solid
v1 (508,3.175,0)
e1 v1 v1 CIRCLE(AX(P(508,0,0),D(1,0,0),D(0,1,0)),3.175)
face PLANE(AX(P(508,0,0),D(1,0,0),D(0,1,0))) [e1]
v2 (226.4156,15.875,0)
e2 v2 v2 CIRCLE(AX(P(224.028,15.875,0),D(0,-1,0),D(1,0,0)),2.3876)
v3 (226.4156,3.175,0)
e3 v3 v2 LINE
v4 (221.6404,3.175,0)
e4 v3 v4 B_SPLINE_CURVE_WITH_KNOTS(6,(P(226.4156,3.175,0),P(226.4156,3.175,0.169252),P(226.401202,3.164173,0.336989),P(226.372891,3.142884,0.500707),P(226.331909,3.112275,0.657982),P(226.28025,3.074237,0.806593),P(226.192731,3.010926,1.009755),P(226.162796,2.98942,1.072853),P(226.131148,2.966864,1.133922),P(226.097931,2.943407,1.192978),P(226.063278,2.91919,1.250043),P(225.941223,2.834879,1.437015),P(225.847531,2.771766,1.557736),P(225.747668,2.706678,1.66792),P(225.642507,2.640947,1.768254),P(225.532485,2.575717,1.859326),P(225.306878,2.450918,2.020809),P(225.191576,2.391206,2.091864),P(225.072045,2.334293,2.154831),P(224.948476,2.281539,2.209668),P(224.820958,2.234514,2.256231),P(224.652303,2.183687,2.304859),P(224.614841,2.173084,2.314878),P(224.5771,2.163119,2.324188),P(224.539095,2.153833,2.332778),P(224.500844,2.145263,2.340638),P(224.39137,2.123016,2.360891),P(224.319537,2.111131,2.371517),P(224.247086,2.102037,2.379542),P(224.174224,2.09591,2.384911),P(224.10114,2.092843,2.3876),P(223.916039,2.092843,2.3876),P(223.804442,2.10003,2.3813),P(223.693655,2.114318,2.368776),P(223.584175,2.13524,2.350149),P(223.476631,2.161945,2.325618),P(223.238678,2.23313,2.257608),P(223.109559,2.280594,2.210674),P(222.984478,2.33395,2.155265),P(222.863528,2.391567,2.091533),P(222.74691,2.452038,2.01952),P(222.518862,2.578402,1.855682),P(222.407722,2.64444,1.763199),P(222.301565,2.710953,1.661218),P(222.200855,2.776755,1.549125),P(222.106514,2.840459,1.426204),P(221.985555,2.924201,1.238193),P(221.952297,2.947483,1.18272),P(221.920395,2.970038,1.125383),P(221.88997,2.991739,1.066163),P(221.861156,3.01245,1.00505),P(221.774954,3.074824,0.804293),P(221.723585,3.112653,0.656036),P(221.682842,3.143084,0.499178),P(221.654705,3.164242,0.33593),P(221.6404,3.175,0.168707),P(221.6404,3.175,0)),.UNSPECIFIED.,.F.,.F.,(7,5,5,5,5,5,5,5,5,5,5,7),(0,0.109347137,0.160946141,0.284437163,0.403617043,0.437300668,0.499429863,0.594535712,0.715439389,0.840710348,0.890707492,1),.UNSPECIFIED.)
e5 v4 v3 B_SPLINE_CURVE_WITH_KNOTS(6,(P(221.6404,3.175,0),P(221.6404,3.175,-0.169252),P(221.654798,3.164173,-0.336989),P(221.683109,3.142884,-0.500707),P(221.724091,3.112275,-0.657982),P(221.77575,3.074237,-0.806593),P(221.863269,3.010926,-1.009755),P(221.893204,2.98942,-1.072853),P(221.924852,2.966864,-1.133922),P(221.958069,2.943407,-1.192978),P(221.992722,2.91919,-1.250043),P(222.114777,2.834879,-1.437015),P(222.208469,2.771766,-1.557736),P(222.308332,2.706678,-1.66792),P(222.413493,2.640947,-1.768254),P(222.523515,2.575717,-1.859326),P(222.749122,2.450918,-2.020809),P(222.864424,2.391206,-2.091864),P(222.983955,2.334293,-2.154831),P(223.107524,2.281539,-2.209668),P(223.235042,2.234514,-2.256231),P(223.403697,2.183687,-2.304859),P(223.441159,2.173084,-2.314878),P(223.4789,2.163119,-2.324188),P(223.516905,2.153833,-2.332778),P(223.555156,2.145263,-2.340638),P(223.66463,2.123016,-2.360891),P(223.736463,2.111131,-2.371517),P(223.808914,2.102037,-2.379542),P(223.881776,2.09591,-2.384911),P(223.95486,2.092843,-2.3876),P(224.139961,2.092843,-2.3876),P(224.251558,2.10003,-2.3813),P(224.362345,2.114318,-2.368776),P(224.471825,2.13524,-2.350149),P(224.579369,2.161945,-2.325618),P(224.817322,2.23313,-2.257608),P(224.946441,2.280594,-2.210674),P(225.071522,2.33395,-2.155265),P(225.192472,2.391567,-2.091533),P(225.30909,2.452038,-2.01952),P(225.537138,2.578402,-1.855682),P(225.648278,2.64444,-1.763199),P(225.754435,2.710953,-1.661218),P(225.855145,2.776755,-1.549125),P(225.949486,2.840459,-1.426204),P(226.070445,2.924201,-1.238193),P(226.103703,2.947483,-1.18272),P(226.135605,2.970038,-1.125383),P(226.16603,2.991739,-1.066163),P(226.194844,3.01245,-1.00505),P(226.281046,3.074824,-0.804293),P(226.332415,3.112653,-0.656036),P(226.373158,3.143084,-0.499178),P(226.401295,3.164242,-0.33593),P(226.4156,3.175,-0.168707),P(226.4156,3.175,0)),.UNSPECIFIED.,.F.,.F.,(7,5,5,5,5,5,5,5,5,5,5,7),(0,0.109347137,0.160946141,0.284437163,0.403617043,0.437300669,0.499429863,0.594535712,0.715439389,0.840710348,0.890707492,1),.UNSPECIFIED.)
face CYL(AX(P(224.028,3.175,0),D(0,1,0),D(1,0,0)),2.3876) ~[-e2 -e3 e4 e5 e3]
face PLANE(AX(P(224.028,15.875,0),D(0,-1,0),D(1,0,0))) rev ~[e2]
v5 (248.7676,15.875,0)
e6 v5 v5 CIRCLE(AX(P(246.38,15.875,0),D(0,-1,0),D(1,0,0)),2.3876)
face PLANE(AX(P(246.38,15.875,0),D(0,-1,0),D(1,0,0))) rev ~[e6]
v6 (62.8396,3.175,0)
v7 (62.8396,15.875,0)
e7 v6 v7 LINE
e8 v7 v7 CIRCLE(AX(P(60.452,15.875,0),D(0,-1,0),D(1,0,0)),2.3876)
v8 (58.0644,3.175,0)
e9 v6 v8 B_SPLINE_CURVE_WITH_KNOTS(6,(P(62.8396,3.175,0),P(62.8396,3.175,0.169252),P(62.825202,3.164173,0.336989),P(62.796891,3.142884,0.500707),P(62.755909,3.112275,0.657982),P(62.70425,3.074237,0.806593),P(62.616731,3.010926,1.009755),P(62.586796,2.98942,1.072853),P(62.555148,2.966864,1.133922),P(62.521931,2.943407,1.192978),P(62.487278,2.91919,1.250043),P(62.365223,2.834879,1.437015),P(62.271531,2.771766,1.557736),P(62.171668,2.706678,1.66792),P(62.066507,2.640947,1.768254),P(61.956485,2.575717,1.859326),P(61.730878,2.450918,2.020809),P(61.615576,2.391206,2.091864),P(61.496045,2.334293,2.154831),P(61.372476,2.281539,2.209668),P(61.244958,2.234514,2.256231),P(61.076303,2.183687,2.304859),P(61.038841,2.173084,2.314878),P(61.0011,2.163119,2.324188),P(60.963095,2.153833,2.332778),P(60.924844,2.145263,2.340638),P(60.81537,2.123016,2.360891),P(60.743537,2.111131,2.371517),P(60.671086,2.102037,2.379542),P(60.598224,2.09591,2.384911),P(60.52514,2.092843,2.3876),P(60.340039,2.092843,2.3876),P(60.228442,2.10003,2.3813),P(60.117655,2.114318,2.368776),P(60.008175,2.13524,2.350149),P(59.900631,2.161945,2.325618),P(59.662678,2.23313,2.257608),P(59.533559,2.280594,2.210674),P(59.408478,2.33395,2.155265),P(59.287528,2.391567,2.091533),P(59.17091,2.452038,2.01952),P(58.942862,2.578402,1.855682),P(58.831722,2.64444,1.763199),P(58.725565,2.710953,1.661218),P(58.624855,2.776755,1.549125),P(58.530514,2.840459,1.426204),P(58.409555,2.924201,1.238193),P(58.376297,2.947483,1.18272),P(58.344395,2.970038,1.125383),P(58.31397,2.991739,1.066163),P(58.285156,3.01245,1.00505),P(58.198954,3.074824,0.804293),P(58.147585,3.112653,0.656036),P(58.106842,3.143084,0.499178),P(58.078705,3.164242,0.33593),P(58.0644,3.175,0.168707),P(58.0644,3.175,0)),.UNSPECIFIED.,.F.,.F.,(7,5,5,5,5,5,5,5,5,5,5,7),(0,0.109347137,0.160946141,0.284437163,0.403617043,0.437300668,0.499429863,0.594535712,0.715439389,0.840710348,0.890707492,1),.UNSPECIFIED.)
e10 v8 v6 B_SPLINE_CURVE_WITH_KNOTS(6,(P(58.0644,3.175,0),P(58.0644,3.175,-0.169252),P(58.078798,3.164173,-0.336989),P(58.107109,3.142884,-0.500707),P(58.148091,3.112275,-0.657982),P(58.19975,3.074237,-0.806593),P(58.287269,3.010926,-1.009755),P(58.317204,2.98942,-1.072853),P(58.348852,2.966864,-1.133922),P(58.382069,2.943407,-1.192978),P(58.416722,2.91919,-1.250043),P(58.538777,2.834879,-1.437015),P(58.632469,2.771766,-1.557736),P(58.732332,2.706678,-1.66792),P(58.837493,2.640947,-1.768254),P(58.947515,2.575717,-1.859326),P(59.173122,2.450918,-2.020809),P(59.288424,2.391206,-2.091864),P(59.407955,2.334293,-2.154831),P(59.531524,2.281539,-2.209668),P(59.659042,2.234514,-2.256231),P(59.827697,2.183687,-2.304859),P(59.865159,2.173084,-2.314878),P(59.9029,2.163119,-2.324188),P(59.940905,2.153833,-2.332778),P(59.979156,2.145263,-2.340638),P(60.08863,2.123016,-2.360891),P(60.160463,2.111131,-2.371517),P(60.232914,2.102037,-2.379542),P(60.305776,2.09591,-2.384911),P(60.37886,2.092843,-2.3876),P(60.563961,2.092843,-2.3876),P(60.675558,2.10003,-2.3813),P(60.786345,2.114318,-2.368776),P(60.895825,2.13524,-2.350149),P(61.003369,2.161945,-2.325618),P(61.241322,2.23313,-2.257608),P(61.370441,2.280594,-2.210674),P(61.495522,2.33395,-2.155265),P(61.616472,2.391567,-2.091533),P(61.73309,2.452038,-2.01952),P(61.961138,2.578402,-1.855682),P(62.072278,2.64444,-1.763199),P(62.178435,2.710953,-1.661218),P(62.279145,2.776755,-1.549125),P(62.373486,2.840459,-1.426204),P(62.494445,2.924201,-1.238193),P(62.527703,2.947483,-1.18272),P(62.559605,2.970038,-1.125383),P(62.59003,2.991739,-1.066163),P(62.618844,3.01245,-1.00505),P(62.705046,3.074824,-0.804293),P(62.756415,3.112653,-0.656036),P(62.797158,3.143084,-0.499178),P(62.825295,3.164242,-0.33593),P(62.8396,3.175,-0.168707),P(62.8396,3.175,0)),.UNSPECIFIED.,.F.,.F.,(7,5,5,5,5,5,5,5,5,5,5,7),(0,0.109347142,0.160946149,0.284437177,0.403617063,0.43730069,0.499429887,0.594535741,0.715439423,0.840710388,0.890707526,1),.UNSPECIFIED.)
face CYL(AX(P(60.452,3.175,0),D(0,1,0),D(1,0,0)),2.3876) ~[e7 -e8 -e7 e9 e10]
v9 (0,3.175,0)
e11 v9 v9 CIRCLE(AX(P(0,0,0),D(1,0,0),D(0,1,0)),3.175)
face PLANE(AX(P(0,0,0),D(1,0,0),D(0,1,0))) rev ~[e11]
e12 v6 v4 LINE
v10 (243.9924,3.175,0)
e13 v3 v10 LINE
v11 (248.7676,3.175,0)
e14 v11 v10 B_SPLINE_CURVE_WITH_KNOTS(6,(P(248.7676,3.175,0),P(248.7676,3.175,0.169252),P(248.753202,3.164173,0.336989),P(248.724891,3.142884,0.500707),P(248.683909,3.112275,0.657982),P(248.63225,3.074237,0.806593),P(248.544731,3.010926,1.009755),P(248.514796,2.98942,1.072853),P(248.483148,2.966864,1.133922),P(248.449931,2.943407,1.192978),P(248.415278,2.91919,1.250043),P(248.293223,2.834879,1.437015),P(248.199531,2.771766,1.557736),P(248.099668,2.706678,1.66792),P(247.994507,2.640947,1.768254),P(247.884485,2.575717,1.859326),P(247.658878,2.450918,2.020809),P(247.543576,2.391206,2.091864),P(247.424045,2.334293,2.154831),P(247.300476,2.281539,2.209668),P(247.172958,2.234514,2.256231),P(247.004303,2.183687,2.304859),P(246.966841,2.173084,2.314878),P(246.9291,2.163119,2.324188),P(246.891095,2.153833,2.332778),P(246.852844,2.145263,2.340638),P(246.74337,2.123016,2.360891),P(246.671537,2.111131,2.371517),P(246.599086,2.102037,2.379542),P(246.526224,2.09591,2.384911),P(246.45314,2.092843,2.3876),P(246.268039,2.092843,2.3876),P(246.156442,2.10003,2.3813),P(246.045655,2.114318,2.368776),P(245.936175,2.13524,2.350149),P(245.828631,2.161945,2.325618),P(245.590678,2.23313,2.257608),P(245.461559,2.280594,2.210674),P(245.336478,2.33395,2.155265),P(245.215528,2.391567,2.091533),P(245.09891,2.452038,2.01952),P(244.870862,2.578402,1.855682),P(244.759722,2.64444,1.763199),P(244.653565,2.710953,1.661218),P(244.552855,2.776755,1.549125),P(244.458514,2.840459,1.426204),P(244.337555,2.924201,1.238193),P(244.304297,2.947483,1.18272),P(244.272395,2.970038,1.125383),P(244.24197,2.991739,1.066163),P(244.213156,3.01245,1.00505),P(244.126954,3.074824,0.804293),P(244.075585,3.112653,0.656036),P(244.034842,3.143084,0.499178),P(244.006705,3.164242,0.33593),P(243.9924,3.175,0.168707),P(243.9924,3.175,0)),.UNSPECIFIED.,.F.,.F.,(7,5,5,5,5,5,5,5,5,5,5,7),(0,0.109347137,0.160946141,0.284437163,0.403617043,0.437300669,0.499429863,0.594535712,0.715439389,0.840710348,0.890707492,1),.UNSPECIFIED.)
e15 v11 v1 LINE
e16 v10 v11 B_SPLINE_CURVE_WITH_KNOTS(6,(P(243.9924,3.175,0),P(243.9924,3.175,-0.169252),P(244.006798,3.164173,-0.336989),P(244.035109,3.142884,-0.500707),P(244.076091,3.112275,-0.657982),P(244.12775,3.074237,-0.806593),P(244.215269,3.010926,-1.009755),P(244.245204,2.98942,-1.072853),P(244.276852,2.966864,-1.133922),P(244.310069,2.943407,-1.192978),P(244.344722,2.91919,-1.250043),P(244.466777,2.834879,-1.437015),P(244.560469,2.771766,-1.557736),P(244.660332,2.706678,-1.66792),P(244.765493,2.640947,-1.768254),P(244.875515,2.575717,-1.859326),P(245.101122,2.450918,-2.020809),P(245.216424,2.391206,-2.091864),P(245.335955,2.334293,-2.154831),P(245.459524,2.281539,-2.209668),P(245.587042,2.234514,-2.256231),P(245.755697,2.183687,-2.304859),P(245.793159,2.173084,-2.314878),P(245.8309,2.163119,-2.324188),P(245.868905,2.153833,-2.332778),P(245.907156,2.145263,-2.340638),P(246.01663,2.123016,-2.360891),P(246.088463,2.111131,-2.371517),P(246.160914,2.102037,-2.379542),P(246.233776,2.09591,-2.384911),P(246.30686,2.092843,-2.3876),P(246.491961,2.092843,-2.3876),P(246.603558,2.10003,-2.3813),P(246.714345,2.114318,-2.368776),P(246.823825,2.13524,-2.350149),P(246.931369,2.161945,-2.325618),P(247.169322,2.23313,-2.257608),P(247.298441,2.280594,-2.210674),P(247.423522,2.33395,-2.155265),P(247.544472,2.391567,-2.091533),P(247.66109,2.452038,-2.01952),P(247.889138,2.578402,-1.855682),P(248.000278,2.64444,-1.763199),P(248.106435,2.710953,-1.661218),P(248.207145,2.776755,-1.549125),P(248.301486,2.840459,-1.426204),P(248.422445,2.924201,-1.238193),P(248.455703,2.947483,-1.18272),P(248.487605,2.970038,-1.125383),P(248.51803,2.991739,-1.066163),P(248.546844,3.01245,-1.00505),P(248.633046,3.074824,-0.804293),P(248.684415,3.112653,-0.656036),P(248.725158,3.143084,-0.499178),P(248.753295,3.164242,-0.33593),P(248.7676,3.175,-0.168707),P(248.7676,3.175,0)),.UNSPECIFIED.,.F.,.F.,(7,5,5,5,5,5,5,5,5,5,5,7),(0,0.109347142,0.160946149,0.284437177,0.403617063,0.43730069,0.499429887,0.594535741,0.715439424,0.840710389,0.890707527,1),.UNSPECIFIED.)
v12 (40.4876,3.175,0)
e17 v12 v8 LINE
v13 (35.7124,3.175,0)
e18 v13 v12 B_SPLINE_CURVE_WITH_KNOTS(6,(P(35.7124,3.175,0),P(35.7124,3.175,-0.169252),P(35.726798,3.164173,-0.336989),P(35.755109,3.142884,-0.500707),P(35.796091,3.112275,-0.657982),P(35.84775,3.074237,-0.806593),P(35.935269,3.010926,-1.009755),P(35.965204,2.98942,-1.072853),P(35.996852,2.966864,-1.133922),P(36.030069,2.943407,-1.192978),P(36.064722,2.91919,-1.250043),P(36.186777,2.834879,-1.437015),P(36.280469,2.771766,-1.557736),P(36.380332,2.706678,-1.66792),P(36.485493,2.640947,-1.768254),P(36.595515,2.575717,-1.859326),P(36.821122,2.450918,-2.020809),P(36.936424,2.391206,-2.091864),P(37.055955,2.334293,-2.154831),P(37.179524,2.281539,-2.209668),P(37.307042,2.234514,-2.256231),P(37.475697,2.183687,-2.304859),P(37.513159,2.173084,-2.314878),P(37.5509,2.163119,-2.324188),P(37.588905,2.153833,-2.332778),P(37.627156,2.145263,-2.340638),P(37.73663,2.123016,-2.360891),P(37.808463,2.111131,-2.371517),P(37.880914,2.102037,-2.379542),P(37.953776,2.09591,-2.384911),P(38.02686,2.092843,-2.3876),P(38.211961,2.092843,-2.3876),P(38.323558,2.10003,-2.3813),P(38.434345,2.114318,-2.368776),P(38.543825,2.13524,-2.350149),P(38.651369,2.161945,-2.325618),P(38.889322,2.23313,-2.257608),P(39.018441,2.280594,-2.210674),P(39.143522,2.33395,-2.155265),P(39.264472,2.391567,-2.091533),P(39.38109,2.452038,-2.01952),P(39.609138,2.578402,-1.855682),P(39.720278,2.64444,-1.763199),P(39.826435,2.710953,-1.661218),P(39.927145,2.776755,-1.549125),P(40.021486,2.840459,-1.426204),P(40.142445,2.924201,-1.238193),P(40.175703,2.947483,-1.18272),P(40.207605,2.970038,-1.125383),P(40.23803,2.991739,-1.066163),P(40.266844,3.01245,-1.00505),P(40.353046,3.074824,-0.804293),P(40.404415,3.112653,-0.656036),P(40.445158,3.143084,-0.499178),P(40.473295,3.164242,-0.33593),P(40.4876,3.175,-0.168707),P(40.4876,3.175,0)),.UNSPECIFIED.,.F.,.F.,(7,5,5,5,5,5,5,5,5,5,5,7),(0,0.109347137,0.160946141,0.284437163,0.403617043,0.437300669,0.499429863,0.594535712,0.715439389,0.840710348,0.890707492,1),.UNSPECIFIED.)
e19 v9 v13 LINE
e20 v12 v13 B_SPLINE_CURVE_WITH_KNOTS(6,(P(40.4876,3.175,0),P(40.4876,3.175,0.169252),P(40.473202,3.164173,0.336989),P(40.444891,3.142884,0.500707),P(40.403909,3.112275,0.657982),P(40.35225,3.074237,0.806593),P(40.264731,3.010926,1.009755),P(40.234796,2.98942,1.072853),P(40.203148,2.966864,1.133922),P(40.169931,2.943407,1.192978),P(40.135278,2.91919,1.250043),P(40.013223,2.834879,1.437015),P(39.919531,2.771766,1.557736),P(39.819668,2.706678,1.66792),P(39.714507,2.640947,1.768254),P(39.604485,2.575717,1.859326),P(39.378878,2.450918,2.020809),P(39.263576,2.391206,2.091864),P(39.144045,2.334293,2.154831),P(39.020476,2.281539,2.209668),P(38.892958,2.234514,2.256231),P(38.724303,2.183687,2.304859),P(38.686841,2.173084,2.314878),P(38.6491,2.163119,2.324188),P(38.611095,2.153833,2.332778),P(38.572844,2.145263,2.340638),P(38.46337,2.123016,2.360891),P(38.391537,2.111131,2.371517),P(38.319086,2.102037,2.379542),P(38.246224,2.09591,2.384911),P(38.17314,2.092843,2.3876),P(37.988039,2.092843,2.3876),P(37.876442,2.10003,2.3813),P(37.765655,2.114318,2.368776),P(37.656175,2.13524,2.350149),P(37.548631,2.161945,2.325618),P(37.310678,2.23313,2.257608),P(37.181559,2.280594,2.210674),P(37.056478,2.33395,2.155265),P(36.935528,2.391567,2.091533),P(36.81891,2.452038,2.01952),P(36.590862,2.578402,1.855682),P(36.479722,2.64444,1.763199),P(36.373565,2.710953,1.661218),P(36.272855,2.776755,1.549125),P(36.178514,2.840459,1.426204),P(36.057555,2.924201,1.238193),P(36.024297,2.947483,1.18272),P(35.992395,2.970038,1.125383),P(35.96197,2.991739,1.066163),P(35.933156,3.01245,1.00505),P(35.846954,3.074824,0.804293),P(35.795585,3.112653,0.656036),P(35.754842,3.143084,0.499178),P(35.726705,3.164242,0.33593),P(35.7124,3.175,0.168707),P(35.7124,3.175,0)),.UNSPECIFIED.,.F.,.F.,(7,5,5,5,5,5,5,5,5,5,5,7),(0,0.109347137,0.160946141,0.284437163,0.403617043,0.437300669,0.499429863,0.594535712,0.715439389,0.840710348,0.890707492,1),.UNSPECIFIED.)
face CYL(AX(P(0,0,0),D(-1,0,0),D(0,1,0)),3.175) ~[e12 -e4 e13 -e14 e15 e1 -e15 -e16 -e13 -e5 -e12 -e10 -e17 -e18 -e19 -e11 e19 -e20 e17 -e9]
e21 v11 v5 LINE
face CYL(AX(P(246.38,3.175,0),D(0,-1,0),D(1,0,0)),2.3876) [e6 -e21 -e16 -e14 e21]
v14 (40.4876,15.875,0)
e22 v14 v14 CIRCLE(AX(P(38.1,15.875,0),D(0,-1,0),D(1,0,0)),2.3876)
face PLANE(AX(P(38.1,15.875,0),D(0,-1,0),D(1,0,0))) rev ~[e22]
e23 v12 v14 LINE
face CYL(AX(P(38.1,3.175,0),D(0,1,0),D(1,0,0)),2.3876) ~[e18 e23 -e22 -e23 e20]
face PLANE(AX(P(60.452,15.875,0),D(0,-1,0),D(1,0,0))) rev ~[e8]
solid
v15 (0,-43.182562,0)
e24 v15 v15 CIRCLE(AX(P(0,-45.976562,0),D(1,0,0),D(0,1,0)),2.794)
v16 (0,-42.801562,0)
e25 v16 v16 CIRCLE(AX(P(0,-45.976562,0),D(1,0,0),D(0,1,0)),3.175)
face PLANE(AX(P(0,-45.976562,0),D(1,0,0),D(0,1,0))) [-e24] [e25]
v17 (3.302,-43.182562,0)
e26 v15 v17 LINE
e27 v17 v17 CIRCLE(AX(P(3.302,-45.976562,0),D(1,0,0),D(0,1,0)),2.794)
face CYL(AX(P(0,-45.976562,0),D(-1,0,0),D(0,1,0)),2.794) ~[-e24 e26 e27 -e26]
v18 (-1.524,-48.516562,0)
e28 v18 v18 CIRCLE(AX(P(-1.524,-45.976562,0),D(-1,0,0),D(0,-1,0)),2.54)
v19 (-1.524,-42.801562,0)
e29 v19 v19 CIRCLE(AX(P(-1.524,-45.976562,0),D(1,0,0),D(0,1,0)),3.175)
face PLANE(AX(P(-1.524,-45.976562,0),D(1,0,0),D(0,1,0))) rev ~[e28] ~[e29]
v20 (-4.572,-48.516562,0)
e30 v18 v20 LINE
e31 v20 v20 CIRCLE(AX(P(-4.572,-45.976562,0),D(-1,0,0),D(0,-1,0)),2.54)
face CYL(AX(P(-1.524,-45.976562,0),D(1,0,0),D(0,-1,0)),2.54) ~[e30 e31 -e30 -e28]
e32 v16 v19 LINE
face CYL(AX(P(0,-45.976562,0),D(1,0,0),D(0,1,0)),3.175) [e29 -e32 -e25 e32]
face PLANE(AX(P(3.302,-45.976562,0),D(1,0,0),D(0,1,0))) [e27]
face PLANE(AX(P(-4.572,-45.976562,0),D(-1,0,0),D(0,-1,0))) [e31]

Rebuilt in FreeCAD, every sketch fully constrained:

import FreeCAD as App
import Part
import Sketcher
Q = App.Units.Quantity

doc = App.newDocument("Part")
body = doc.addObject("PartDesign::Body", "Body")

# Sketch on YZ plane
sketch1 = body.newObject("Sketcher::SketchObject", "Sketch")
sketch1.AttachmentSupport = (doc.getObject("YZ_Plane"), [""])
sketch1.MapMode = "FlatFace"
sketch1.addGeometry(Part.Circle(App.Vector(0, 0, 0), App.Vector(0, 0, 1), 3.2), False)
sketch1.addConstraint(Sketcher.Constraint("Coincident", 0, 3, -1, 1))
sketch1.addConstraint(Sketcher.Constraint("Diameter", 0, Q("0.25 in")))
pad1 = body.newObject("PartDesign::Pad", "Pad")
pad1.Profile = sketch1
pad1.Length = Q("20 in")

# Sketch on XZ plane
sketch2 = body.newObject("Sketcher::SketchObject", "Sketch001")
sketch2.AttachmentSupport = (doc.getObject("XZ_Plane"), [""])
sketch2.MapMode = "FlatFace"
sketch2.AttachmentOffset = App.Placement(App.Vector(0, 0, -0.125 * 25.4), App.Rotation())
sketch2.addGeometry(Part.Circle(App.Vector(246.4, 0, 0), App.Vector(0, 0, 1), 2.4), False)
sketch2.addGeometry(Part.Circle(App.Vector(224, 0, 0), App.Vector(0, 0, 1), 2.4), False)
sketch2.addGeometry(Part.Circle(App.Vector(60.5, 0, 0), App.Vector(0, 0, 1), 2.4), False)
sketch2.addGeometry(Part.Circle(App.Vector(38.1, 0, 0), App.Vector(0, 0, 1), 2.4), False)
sketch2.addConstraint(Sketcher.Constraint("Equal", 0, 1))
sketch2.addConstraint(Sketcher.Constraint("Equal", 1, 2))
sketch2.addConstraint(Sketcher.Constraint("Equal", 2, 3))
sketch2.addConstraint(Sketcher.Constraint("PointOnObject", 0, 3, -1))
sketch2.addConstraint(Sketcher.Constraint("PointOnObject", 1, 3, -1))
sketch2.addConstraint(Sketcher.Constraint("PointOnObject", 2, 3, -1))
sketch2.addConstraint(Sketcher.Constraint("PointOnObject", 3, 3, -1))
sketch2.addConstraint(Sketcher.Constraint("Diameter", 0, Q("0.188 in")))
sketch2.addConstraint(Sketcher.Constraint("DistanceX", -1, 1, 0, 3, Q("9.7 in")))
sketch2.addConstraint(Sketcher.Constraint("DistanceX", -1, 1, 3, 3, Q("1.5 in")))
sketch2.addConstraint(Sketcher.Constraint("DistanceX", -1, 1, 1, 3, Q("8.82 in")))
sketch2.addConstraint(Sketcher.Constraint("DistanceX", -1, 1, 2, 3, Q("2.38 in")))
pad2 = body.newObject("PartDesign::Pad", "Pad001")
pad2.Profile = sketch2
pad2.Type = "TwoLengths"
pad2.Length = Q("0.1 in")
pad2.Length2 = Q("0.5 in")
body2 = doc.addObject("PartDesign::Body", "Body001")

# Sketch on YZ plane
sketch3 = body2.newObject("Sketcher::SketchObject", "Sketch002")
sketch3.AttachmentSupport = (doc.getObject("YZ_Plane001"), [""])
sketch3.MapMode = "FlatFace"
sketch3.addGeometry(Part.Circle(App.Vector(-46, 0, 0), App.Vector(0, 0, 1), 3.2), False)
sketch3.addConstraint(Sketcher.Constraint("PointOnObject", 0, 3, -1))
sketch3.addConstraint(Sketcher.Constraint("Diameter", 0, Q("0.25 in")))
sketch3.addConstraint(Sketcher.Constraint("DistanceX", 0, 3, -1, 1, Q("45.976562 mm")))
pad3 = body2.newObject("PartDesign::Pad", "Pad002")
pad3.Profile = sketch3
pad3.Length = Q("0.06 in")
pad3.Reversed = True

# Sketch on YZ plane
sketch4 = body2.newObject("Sketcher::SketchObject", "Sketch003")
sketch4.AttachmentSupport = (doc.getObject("YZ_Plane001"), [""])
sketch4.MapMode = "FlatFace"
sketch4.addGeometry(Part.Circle(App.Vector(-46, 0, 0), App.Vector(0, 0, 1), 2.8), False)
sketch4.addConstraint(Sketcher.Constraint("PointOnObject", 0, 3, -1))
sketch4.addConstraint(Sketcher.Constraint("Diameter", 0, Q("0.22 in")))
sketch4.addConstraint(Sketcher.Constraint("DistanceX", 0, 3, -1, 1, Q("45.976562 mm")))
pad4 = body2.newObject("PartDesign::Pad", "Pad003")
pad4.Profile = sketch4
pad4.Length = Q("0.13 in")

# Sketch on YZ plane
sketch5 = body2.newObject("Sketcher::SketchObject", "Sketch004")
sketch5.AttachmentSupport = (doc.getObject("YZ_Plane001"), [""])
sketch5.MapMode = "FlatFace"
sketch5.AttachmentOffset = App.Placement(App.Vector(0, 0, -0.06 * 25.4), App.Rotation())
sketch5.addGeometry(Part.Circle(App.Vector(-46, 0, 0), App.Vector(0, 0, 1), 2.5), False)
sketch5.addConstraint(Sketcher.Constraint("PointOnObject", 0, 3, -1))
sketch5.addConstraint(Sketcher.Constraint("Diameter", 0, Q("0.2 in")))
sketch5.addConstraint(Sketcher.Constraint("DistanceX", 0, 3, -1, 1, Q("45.976562 mm")))
pad5 = body2.newObject("PartDesign::Pad", "Pad004")
pad5.Profile = sketch5
pad5.Length = Q("0.12 in")
pad5.Reversed = True

doc.recompute()
